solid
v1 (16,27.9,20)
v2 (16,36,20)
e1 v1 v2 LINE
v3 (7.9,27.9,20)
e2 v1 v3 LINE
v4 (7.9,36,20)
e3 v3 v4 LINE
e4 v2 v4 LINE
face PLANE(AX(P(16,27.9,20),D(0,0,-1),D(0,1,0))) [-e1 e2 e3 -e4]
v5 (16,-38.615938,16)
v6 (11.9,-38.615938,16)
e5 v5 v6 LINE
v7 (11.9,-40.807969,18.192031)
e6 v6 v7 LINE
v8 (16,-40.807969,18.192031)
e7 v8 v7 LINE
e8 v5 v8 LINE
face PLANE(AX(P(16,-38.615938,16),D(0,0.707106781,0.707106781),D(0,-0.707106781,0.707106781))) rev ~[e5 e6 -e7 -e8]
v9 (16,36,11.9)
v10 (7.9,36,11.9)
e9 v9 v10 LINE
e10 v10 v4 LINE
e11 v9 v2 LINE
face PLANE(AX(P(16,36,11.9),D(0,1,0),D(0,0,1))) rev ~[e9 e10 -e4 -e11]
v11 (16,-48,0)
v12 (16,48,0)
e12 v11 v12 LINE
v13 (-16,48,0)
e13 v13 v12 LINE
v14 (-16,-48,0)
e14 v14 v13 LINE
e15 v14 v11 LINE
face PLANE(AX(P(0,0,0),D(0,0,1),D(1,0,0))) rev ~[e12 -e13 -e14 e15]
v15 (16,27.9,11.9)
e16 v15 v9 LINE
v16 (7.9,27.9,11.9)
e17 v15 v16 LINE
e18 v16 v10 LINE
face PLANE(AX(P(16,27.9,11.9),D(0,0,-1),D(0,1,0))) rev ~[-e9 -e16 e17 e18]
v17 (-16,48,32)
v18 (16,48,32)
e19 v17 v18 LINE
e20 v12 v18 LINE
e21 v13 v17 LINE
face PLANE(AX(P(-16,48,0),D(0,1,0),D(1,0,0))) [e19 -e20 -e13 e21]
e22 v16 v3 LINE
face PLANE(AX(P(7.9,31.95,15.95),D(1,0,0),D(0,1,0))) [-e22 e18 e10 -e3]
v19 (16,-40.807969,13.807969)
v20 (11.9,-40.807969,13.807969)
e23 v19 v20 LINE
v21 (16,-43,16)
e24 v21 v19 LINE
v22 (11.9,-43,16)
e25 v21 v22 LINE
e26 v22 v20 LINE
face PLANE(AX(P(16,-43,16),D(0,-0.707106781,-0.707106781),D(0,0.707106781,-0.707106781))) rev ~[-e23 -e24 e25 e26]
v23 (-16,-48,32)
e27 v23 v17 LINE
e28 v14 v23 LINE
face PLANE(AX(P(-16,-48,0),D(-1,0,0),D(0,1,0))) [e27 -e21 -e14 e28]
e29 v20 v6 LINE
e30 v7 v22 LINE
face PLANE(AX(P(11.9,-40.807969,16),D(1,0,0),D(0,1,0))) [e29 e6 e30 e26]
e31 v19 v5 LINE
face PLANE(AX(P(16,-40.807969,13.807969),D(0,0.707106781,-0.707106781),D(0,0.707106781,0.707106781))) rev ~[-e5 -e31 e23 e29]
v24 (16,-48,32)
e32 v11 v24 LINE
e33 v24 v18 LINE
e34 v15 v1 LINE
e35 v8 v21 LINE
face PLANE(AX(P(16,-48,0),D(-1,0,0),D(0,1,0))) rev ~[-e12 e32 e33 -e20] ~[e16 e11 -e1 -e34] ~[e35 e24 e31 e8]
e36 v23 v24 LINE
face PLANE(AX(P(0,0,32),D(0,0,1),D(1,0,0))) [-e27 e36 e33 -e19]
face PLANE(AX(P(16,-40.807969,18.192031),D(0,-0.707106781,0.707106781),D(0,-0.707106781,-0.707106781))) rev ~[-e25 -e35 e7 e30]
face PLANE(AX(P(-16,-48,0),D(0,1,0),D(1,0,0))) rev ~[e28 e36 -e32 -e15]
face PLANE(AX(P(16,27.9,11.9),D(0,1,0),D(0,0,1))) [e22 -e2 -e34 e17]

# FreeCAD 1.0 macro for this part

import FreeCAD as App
import Part
import Sketcher

V = App.Vector
Q = App.Units.Quantity


def add_polygon(sketch, points):
    """Adds a closed chain of lines whose ends are joined by coincident constraints."""
    first, n = sketch.GeometryCount, len(points)
    for a, b in zip(points, points[1:] + points[:1]):
        sketch.addGeometry(Part.LineSegment(App.Vector(*a, 0), App.Vector(*b, 0)), False)
    for i in range(n):
        sketch.addConstraint(Sketcher.Constraint("Coincident", first + i, 2, first + (i + 1) % n, 1))

doc = App.newDocument("Part")
body = doc.addObject("PartDesign::Body", "Body")

sketch1 = body.newObject("Sketcher::SketchObject", "Sketch")
sketch1.AttachmentSupport = (doc.getObject("XY_Plane"), [""])
sketch1.MapMode = "FlatFace"
add_polygon(sketch1, [(-16, 48), (-16, -48), (16, -48), (16, 48)])
sketch1.addConstraint([
    Sketcher.Constraint("Vertical", 0),
    Sketcher.Constraint("Horizontal", 1),
    Sketcher.Constraint("Vertical", 2),
    Sketcher.Constraint("Horizontal", 3),
    Sketcher.Constraint("Symmetric", 0, 2, 2, 2, -1, 1),
    Sketcher.Constraint("DistanceX", 1, 1, 1, 2, Q("32 mm")),
    Sketcher.Constraint("DistanceY", 0, 2, 0, 1, Q("96 mm")),
])
pad1 = body.newObject("PartDesign::Pad", "Pad")
pad1.Profile = sketch1
pad1.Length = 32

sketch2 = body.newObject("Sketcher::SketchObject", "Sketch001")
sketch2.AttachmentSupport = (doc.getObject("YZ_Plane"), [""])
sketch2.MapMode = "FlatFace"
sketch2.AttachmentOffset = App.Placement(V(0, 0, 16), App.Rotation())
add_polygon(sketch2, [(28, 20), (28, 12), (36, 12), (36, 20)])
sketch2.addConstraint([
    Sketcher.Constraint("Vertical", 0),
    Sketcher.Constraint("Horizontal", 1),
    Sketcher.Constraint("Vertical", 2),
    Sketcher.Constraint("Horizontal", 3),
    Sketcher.Constraint("Equal", 3, 0),
    Sketcher.Constraint("DistanceX", 1, 1, 1, 2, Q("8.1 mm")),
    Sketcher.Constraint("DistanceX", -1, 1, 1, 2, Q("36 mm")),
    Sketcher.Constraint("DistanceY", -1, 1, 2, 2, Q("20 mm")),
])
pocket1 = body.newObject("PartDesign::Pocket", "Pocket")
pocket1.Profile = sketch2
pocket1.Length = 8.1

sketch3 = body.newObject("Sketcher::SketchObject", "Sketch002")
sketch3.AttachmentSupport = (doc.getObject("YZ_Plane"), [""])
sketch3.MapMode = "FlatFace"
sketch3.AttachmentOffset = App.Placement(V(0, 0, 16), App.Rotation())
add_polygon(sketch3, [(-38.6, 16), (-40.8, 18.2), (-43, 16), (-40.8, 13.8)])
sketch3.addConstraint([
    Sketcher.Constraint("Perpendicular", 0, 1),
    Sketcher.Constraint("Perpendicular", 1, 2),
    Sketcher.Constraint("Perpendicular", 2, 3),
    Sketcher.Constraint("Horizontal", 1, 2, 3, 2),
    Sketcher.Constraint("Vertical", 0, 2, 2, 2),
    Sketcher.Constraint("DistanceX", 1, 2, -1, 1, Q("43 mm")),
    Sketcher.Constraint("DistanceY", -1, 1, 1, 2, Q("16 mm")),
    Sketcher.Constraint("Distance", 0, Q("3.1 mm")),
])
pocket2 = body.newObject("PartDesign::Pocket", "Pocket001")
pocket2.Profile = sketch3
pocket2.Length = 4.1

doc.recompute()
